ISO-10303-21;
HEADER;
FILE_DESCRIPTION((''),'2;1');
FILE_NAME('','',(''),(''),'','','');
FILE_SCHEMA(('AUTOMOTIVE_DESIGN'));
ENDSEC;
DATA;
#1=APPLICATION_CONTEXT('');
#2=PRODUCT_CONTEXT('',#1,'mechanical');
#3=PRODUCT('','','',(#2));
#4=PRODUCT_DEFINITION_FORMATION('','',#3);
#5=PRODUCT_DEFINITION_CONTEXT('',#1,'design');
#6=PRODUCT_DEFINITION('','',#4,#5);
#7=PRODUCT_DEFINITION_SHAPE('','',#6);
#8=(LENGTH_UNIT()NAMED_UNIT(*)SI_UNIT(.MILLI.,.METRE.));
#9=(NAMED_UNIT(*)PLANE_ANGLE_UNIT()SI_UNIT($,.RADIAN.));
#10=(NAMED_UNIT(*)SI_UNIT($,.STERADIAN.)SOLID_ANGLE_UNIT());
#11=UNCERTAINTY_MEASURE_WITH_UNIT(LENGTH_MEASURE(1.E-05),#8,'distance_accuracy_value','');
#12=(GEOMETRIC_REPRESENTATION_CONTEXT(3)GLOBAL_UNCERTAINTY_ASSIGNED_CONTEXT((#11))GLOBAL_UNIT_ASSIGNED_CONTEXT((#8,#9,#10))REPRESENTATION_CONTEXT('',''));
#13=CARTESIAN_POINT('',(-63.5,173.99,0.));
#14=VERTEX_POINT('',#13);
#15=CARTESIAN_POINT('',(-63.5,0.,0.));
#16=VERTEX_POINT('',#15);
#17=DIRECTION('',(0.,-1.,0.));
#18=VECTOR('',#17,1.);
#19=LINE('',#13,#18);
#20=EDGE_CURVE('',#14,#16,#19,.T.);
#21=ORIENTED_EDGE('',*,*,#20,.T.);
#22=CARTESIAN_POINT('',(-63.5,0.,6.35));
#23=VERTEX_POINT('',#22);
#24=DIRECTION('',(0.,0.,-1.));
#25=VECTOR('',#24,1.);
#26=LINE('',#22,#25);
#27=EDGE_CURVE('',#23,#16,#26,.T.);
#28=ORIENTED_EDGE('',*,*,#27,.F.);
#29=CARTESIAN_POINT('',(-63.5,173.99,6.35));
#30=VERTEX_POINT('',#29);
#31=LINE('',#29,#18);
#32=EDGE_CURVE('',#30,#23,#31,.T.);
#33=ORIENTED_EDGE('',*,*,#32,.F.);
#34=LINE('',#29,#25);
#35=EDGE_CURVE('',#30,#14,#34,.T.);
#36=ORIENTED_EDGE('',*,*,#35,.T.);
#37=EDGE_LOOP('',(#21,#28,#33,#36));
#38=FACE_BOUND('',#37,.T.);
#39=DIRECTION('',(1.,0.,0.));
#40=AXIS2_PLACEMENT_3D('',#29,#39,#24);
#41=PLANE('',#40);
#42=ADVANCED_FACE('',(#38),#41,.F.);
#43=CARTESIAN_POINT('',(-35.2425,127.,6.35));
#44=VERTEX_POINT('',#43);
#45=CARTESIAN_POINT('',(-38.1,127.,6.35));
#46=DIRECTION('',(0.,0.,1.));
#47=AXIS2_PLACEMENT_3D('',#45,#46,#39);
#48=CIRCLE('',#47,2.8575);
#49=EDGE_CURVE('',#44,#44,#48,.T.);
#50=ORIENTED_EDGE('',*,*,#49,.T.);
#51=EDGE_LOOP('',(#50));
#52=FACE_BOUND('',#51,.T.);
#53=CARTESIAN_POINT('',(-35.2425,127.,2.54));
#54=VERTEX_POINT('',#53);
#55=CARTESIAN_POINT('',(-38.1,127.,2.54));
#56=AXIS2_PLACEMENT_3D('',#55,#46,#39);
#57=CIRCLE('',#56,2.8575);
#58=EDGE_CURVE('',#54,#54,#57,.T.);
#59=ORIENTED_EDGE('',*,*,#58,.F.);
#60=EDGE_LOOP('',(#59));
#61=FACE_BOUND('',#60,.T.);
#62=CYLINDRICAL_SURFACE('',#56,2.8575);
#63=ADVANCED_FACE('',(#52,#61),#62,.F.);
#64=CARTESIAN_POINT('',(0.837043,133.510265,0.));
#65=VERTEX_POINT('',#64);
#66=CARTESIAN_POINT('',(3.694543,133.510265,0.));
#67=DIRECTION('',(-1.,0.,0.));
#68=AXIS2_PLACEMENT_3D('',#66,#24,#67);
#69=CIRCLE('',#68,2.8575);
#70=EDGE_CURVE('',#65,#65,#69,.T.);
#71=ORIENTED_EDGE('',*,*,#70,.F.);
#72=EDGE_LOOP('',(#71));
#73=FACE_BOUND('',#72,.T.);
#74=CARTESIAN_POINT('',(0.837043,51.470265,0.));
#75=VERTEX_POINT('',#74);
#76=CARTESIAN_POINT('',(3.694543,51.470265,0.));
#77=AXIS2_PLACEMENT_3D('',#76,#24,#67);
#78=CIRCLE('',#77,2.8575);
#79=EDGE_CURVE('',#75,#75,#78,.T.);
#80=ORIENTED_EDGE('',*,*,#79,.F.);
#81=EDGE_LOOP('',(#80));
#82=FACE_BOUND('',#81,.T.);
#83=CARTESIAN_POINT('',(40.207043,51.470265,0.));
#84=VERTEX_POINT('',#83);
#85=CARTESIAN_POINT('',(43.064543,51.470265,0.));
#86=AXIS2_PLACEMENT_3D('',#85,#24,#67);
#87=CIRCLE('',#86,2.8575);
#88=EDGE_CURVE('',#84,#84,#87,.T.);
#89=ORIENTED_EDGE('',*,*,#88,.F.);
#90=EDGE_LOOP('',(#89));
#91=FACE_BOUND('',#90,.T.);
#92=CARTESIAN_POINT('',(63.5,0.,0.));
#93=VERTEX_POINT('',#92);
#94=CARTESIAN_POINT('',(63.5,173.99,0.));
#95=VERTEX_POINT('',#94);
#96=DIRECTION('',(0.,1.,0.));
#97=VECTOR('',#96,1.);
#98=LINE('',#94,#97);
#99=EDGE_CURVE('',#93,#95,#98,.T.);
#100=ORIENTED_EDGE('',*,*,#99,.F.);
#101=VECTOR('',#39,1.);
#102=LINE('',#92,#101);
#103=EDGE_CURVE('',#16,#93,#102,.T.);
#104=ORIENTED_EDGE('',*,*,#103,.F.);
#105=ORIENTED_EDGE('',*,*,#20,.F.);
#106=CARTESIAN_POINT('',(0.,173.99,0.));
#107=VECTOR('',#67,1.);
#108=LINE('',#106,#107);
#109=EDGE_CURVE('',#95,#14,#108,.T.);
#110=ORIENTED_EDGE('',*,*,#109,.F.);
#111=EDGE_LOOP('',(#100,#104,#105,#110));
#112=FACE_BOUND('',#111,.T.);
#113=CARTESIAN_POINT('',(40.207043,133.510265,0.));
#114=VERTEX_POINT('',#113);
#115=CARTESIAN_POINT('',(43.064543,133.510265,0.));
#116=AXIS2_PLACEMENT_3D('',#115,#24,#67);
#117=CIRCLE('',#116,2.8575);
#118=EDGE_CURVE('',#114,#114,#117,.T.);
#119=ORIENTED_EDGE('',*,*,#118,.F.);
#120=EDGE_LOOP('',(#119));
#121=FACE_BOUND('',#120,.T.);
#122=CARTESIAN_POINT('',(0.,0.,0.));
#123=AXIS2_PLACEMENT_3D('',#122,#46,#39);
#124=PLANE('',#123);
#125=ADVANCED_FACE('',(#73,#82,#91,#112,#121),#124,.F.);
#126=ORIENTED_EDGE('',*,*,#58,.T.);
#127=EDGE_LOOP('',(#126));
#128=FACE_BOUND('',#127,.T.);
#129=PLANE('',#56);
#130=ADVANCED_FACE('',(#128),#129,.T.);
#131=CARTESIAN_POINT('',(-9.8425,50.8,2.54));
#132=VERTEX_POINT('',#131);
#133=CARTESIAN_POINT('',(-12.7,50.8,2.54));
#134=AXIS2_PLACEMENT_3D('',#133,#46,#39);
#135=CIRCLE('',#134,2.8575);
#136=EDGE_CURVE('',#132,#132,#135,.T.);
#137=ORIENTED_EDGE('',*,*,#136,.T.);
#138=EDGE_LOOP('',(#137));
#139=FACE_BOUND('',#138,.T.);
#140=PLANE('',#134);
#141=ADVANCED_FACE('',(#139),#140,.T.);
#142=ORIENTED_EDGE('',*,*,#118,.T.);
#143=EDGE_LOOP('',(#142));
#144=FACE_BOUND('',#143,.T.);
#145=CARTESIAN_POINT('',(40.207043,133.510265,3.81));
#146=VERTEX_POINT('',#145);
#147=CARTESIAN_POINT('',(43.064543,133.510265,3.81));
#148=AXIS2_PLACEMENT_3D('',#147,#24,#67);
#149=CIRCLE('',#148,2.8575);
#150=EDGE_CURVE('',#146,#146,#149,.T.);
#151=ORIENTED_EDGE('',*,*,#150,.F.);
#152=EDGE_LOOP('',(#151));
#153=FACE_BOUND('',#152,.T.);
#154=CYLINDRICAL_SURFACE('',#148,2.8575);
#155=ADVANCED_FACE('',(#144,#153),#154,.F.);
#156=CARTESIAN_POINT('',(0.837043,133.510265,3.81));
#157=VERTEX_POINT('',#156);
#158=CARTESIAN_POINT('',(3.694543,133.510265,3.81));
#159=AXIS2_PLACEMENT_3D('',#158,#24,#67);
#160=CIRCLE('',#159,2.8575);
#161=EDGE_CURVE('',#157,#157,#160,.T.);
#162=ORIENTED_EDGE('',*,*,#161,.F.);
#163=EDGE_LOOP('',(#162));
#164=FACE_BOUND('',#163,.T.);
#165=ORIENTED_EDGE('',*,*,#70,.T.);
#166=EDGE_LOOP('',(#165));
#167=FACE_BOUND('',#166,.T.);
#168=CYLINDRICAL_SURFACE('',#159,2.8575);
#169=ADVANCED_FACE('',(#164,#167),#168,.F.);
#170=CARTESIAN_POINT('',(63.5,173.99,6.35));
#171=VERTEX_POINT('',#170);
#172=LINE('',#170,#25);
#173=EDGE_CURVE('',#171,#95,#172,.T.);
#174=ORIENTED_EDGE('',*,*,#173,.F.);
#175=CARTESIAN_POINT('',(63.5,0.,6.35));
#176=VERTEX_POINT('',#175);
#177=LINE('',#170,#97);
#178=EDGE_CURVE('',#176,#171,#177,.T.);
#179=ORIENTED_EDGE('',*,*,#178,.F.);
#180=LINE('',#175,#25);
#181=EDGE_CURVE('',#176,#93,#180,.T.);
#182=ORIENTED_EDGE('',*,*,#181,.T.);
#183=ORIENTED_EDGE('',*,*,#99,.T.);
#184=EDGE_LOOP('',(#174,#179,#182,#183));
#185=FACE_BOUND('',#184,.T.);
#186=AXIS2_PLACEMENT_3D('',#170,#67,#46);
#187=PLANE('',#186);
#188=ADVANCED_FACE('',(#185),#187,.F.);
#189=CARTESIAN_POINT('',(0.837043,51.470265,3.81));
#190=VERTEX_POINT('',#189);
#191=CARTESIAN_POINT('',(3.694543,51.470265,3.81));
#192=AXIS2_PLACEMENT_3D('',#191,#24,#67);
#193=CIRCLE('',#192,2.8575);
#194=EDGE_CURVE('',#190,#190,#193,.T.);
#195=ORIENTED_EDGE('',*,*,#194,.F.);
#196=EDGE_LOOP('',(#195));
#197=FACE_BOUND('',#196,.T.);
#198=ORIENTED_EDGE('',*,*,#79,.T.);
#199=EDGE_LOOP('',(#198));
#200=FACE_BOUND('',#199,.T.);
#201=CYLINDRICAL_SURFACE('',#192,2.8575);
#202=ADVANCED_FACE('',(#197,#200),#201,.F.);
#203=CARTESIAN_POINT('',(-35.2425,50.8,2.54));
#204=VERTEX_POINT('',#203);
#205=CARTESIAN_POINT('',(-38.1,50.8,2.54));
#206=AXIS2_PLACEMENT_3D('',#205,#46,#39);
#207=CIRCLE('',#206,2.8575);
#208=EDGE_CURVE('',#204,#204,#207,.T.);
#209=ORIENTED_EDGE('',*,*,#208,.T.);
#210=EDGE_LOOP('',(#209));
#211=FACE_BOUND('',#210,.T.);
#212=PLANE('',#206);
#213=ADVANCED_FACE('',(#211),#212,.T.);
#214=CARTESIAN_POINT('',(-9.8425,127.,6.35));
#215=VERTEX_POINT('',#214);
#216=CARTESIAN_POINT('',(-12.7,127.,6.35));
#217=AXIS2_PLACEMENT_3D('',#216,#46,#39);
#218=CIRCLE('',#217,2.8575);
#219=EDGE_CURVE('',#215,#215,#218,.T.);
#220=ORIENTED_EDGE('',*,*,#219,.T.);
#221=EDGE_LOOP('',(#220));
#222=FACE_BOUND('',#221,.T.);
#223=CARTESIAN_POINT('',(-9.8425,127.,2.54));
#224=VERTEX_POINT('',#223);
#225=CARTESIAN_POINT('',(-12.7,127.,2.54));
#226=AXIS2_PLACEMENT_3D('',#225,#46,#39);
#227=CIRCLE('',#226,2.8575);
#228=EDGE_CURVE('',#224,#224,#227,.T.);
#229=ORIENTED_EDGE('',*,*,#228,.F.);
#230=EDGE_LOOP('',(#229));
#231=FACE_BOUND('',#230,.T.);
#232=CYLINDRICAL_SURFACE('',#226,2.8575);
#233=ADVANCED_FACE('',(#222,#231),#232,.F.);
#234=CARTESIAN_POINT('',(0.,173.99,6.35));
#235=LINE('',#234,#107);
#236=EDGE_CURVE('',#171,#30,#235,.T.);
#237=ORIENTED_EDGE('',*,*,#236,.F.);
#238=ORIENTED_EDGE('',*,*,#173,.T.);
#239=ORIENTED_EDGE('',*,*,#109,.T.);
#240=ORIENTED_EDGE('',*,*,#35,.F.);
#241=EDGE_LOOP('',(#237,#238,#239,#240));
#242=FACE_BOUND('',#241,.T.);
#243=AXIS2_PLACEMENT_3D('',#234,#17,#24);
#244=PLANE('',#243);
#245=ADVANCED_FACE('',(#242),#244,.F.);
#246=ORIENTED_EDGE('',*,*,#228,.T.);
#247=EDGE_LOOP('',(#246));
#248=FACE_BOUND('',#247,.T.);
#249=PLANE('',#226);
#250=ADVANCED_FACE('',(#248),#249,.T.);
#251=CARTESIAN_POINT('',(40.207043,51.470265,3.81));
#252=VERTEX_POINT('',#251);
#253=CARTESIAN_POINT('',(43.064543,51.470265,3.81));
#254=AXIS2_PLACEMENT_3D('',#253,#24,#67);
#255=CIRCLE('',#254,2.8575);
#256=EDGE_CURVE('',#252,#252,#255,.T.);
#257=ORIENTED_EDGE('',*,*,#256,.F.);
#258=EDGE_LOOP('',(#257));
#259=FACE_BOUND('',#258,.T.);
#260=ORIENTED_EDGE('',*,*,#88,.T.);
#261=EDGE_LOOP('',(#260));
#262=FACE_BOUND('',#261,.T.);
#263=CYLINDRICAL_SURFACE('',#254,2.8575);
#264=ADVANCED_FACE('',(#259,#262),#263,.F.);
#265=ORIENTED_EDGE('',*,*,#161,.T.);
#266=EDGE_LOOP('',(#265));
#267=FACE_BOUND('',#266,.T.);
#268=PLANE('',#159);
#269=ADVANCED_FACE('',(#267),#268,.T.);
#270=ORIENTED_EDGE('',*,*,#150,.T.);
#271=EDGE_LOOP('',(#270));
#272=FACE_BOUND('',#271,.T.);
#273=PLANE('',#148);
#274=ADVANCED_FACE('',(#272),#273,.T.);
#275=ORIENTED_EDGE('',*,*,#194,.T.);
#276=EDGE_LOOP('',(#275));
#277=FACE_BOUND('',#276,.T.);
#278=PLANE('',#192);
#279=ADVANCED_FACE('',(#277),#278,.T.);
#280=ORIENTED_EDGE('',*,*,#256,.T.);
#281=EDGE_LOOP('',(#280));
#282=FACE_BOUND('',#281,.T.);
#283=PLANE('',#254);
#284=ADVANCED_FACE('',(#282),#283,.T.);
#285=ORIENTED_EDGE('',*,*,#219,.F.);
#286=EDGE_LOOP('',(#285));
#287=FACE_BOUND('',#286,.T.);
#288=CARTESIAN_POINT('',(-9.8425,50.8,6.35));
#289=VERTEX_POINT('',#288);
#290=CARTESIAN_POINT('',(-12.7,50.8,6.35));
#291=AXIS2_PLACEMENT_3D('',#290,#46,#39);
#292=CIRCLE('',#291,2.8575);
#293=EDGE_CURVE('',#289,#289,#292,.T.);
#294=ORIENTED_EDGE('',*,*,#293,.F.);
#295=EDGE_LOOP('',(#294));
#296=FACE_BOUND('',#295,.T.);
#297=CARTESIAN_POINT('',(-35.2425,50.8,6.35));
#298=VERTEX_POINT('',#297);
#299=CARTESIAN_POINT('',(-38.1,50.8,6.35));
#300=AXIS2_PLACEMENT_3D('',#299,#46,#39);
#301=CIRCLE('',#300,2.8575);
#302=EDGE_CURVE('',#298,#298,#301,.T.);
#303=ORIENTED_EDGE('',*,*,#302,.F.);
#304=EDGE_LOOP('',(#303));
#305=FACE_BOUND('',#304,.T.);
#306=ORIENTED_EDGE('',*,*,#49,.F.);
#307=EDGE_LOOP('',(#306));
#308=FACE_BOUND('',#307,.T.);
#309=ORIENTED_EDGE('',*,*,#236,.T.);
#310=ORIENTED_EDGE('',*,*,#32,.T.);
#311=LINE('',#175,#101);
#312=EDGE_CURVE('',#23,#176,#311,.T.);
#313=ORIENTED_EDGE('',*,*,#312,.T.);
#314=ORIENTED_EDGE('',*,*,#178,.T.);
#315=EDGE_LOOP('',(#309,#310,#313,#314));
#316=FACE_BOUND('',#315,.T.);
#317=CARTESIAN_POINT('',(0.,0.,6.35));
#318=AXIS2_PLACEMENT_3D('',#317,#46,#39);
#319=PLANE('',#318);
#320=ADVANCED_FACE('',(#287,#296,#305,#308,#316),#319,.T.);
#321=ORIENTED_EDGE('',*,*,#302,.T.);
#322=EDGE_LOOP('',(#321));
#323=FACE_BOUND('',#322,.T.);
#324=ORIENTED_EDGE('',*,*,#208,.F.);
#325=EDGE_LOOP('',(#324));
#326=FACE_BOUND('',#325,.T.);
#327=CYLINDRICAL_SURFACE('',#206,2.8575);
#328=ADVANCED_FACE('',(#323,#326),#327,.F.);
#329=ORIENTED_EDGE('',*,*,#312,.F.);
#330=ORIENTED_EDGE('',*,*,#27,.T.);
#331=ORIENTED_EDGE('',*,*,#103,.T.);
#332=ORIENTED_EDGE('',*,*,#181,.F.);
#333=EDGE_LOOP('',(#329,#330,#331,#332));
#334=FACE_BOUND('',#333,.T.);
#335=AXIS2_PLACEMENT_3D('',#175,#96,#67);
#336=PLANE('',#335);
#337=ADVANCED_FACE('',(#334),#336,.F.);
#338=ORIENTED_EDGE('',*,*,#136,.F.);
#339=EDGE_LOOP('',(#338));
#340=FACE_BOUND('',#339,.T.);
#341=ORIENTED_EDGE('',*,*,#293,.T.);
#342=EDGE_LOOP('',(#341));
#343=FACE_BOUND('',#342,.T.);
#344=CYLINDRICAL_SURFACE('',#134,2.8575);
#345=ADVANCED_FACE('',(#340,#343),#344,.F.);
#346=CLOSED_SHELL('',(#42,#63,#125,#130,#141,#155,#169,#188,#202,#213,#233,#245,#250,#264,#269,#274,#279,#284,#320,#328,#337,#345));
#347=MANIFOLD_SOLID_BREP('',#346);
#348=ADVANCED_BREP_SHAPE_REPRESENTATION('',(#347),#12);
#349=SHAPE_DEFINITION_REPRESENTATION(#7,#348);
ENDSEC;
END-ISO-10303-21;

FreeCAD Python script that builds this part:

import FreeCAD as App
import Part
import Sketcher
Q = App.Units.Quantity


def add_polygon(sketch, points):
    """Adds a closed chain of lines whose ends are joined by coincident constraints."""
    first, n = sketch.GeometryCount, len(points)
    for a, b in zip(points, points[1:] + points[:1]):
        sketch.addGeometry(Part.LineSegment(App.Vector(*a, 0), App.Vector(*b, 0)), False)
    for i in range(n):
        sketch.addConstraint(Sketcher.Constraint("Coincident", first + i, 2, first + (i + 1) % n, 1))

doc = App.newDocument("Part")
body = doc.addObject("PartDesign::Body", "Body")

sketch1 = doc.addObject("Sketcher::SketchObject", "Sketch")
body.addObject(sketch1)
sketch1.AttachmentSupport = (doc.XY_Plane, [""])
sketch1.MapMode = "FlatFace"
add_polygon(sketch1, [(63.5, 173.99), (-63.5, 173.99), (-63.5, 0), (63.5, 0)])
sketch1.addConstraint(Sketcher.Constraint("Horizontal", 0))
sketch1.addConstraint(Sketcher.Constraint("Vertical", 1))
sketch1.addConstraint(Sketcher.Constraint("Horizontal", 2))
sketch1.addConstraint(Sketcher.Constraint("Vertical", 3))
sketch1.addConstraint(Sketcher.Constraint("Symmetric", 1, 2, 2, 2, -1, 1))
sketch1.addConstraint(Sketcher.Constraint("DistanceX", 0, 2, 0, 1, Q("5 in")))
sketch1.addConstraint(Sketcher.Constraint("DistanceY", 1, 2, 1, 1, Q("6.85 in")))
pad1 = doc.addObject("PartDesign::Pad", "Pad")
body.addObject(pad1)
pad1.Profile = sketch1
pad1.Length = Q("0.25 in")

sketch2 = doc.addObject("Sketcher::SketchObject", "Sketch001")
body.addObject(sketch2)
sketch2.AttachmentSupport = (doc.XY_Plane, [""])
sketch2.MapMode = "FlatFace"
sketch2.AttachmentOffset = App.Placement(App.Vector(0, 0, 0.25 * 25.4), App.Rotation())
sketch2.addGeometry(Part.Circle(App.Vector(-38.1, 127, 0), App.Vector(0, 0, 1), 2.8575), False)
sketch2.addGeometry(Part.Circle(App.Vector(-12.7, 127, 0), App.Vector(0, 0, 1), 2.8575), False)
sketch2.addGeometry(Part.Circle(App.Vector(-38.1, 50.8, 0), App.Vector(0, 0, 1), 2.8575), False)
sketch2.addGeometry(Part.Circle(App.Vector(-12.7, 50.8, 0), App.Vector(0, 0, 1), 2.8575), False)
sketch2.addConstraint(Sketcher.Constraint("Equal", 0, 1))
sketch2.addConstraint(Sketcher.Constraint("Equal", 1, 2))
sketch2.addConstraint(Sketcher.Constraint("Equal", 2, 3))
sketch2.addConstraint(Sketcher.Constraint("Horizontal", 0, 3, 1, 3))
sketch2.addConstraint(Sketcher.Constraint("Horizontal", 2, 3, 3, 3))
sketch2.addConstraint(Sketcher.Constraint("Vertical", 0, 3, 2, 3))
sketch2.addConstraint(Sketcher.Constraint("Vertical", 1, 3, 3, 3))
sketch2.addConstraint(Sketcher.Constraint("Diameter", 0, Q("0.225 in")))
sketch2.addConstraint(Sketcher.Constraint("DistanceY", -1, 1, 0, 3, Q("5 in")))
sketch2.addConstraint(Sketcher.Constraint("DistanceY", -1, 1, 2, 3, Q("2 in")))
sketch2.addConstraint(Sketcher.Constraint("DistanceX", 0, 3, 1, 3, Q("1 in")))
sketch2.addConstraint(Sketcher.Constraint("DistanceX", 0, 3, -1, 1, Q("1.5 in")))
pocket1 = doc.addObject("PartDesign::Pocket", "Pocket")
body.addObject(pocket1)
pocket1.Profile = sketch2
pocket1.Length = Q("0.15 in")

sketch3 = doc.addObject("Sketcher::SketchObject", "Sketch002")
body.addObject(sketch3)
sketch3.AttachmentSupport = (doc.XY_Plane, [""])
sketch3.MapMode = "FlatFace"
sketch3.addGeometry(Part.Circle(App.Vector(43.064543, 133.510265, 0), App.Vector(0, 0, 1), 2.8575), False)
sketch3.addGeometry(Part.Circle(App.Vector(3.694543, 133.510265, 0), App.Vector(0, 0, 1), 2.8575), False)
sketch3.addGeometry(Part.Circle(App.Vector(43.064543, 51.470265, 0), App.Vector(0, 0, 1), 2.8575), False)
sketch3.addGeometry(Part.Circle(App.Vector(3.694543, 51.470265, 0), App.Vector(0, 0, 1), 2.8575), False)
sketch3.addConstraint(Sketcher.Constraint("Equal", 0, 1))
sketch3.addConstraint(Sketcher.Constraint("Equal", 1, 2))
sketch3.addConstraint(Sketcher.Constraint("Equal", 2, 3))
sketch3.addConstraint(Sketcher.Constraint("Horizontal", 0, 3, 1, 3))
sketch3.addConstraint(Sketcher.Constraint("Horizontal", 2, 3, 3, 3))
sketch3.addConstraint(Sketcher.Constraint("Vertical", 0, 3, 2, 3))
sketch3.addConstraint(Sketcher.Constraint("Vertical", 1, 3, 3, 3))
sketch3.addConstraint(Sketcher.Constraint("Diameter", 0, Q("0.225 in")))
sketch3.addConstraint(Sketcher.Constraint("DistanceX", 1, 3, 0, 3, Q("1.55 in")))
sketch3.addConstraint(Sketcher.Constraint("DistanceY", 2, 3, 0, 3, Q("82.04 mm")))
sketch3.addConstraint(Sketcher.Constraint("DistanceX", -1, 1, 0, 3, Q("43.064543 mm")))
sketch3.addConstraint(Sketcher.Constraint("DistanceY", -1, 1, 0, 3, Q("133.510265 mm")))
pocket2 = doc.addObject("PartDesign::Pocket", "Pocket001")
body.addObject(pocket2)
pocket2.Profile = sketch3
pocket2.Length = Q("0.15 in")
pocket2.Reversed = True

doc.recompute()
